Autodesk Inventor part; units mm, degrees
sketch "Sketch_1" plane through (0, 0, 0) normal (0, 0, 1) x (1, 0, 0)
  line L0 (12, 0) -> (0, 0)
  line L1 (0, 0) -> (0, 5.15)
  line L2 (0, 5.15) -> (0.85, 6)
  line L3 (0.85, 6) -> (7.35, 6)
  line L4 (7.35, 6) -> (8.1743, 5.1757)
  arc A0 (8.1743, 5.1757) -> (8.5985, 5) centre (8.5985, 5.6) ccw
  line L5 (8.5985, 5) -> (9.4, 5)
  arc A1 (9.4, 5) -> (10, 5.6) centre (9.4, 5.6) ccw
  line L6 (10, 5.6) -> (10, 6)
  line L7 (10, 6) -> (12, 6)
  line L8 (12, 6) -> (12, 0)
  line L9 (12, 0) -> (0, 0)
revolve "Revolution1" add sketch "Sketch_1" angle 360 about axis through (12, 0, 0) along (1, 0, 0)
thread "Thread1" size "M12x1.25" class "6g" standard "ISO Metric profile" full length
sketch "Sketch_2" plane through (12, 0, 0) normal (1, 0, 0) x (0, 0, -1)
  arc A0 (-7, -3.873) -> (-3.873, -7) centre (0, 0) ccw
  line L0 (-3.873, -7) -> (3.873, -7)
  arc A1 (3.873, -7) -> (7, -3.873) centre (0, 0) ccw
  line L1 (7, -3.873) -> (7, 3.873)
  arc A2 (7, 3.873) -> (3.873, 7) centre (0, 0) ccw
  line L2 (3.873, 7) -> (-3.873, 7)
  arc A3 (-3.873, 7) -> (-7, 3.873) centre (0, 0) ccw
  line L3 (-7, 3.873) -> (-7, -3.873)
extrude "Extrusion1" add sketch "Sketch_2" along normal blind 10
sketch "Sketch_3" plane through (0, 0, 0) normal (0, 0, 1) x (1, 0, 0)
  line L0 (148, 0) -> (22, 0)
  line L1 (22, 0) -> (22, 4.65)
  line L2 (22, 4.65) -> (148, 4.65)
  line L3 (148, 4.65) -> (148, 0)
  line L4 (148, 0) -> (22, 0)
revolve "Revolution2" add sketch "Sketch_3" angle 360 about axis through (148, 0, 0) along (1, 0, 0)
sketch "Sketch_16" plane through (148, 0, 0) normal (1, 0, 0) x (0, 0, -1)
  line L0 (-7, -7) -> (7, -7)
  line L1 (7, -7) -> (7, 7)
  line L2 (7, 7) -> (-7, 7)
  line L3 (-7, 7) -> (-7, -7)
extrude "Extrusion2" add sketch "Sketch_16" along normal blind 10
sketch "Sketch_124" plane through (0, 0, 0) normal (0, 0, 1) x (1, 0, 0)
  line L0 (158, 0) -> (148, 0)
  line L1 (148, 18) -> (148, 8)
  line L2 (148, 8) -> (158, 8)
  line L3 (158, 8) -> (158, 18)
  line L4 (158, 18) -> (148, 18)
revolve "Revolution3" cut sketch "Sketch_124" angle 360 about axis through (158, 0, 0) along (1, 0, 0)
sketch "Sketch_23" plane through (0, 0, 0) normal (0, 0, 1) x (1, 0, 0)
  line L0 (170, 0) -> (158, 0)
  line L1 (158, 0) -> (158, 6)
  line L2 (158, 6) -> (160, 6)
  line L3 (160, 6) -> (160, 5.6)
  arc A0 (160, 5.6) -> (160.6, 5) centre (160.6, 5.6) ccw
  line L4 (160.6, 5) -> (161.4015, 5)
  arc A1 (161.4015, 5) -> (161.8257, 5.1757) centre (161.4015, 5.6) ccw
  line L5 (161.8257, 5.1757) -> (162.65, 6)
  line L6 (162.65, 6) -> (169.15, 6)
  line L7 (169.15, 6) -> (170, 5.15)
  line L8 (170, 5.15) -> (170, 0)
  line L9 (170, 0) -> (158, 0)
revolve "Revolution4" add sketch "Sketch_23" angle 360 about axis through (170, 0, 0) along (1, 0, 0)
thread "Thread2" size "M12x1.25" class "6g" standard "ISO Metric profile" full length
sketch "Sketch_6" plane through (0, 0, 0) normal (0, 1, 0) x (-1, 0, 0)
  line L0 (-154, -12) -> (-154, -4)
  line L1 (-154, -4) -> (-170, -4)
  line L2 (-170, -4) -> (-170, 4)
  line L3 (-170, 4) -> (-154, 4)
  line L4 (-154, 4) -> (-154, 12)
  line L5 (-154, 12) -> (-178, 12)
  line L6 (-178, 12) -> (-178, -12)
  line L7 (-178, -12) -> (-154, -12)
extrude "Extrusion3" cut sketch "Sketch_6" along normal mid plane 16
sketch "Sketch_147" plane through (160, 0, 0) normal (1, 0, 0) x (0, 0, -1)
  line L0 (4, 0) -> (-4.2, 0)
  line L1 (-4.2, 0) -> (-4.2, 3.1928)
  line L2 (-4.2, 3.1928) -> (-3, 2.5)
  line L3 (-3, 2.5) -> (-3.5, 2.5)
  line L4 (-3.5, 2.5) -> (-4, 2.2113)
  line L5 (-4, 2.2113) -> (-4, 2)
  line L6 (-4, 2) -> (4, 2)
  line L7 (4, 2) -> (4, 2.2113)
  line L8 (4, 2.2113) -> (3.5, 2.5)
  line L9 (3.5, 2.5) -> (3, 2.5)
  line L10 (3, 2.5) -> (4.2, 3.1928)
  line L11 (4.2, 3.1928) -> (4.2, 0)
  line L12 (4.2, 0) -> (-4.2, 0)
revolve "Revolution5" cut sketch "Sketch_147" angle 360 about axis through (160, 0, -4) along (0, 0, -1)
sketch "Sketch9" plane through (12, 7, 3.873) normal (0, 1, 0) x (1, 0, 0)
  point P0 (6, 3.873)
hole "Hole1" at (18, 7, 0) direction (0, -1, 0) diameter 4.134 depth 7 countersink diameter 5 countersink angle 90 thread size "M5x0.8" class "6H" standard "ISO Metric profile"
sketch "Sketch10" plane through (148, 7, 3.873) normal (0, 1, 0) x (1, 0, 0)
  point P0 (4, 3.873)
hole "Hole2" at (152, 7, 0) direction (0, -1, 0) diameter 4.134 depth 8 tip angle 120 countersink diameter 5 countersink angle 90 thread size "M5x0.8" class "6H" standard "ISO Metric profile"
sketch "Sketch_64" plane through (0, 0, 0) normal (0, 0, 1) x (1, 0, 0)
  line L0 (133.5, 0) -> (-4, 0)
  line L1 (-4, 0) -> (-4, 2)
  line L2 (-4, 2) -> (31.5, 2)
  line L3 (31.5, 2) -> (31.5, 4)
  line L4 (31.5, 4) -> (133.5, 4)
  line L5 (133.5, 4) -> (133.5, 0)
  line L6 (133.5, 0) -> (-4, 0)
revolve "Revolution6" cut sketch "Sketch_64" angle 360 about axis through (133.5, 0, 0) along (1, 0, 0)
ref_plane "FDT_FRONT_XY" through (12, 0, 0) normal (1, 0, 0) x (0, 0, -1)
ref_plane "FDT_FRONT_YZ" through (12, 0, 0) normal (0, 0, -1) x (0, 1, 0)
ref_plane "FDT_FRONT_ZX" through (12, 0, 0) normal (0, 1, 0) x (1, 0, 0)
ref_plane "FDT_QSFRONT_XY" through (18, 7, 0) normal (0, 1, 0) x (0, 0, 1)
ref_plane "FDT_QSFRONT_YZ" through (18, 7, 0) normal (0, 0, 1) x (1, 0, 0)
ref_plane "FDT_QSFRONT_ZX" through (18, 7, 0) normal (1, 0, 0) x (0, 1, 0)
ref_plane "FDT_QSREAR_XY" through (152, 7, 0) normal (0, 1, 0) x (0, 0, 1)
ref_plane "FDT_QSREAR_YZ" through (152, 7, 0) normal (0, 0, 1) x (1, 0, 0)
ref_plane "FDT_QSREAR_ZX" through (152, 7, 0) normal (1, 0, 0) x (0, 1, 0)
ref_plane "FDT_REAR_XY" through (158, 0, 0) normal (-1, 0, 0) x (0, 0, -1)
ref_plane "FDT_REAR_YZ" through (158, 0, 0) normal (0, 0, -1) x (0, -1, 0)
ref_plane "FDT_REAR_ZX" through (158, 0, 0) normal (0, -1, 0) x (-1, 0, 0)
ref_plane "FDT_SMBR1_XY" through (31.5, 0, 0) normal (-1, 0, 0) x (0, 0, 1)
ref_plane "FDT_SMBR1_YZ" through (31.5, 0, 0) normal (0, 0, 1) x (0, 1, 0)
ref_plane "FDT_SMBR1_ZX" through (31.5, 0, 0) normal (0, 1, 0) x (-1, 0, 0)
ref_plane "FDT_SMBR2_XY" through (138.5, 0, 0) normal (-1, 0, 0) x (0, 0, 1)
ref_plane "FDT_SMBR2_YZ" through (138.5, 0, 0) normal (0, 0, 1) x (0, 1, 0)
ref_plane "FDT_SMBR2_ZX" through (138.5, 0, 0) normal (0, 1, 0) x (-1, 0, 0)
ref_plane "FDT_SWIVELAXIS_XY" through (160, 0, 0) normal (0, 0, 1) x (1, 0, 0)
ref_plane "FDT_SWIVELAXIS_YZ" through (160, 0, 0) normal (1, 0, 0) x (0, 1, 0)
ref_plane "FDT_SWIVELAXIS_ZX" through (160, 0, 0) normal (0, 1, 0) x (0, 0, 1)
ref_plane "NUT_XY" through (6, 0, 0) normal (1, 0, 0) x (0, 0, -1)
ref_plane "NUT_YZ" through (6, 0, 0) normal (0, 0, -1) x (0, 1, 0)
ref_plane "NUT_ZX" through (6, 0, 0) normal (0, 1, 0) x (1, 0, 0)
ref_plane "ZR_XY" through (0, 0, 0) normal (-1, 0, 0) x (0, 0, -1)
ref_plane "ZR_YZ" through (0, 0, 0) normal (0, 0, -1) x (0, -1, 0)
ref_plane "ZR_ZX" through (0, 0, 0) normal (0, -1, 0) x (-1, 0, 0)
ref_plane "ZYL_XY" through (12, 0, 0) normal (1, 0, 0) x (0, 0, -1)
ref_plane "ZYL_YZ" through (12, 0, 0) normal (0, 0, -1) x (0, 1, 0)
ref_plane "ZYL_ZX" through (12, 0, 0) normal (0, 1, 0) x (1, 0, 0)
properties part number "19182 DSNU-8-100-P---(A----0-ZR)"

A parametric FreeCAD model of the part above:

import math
import FreeCAD as App
import Part
import Sketcher

V = App.Vector
Q = App.Units.Quantity

doc = App.newDocument("Part")
body = doc.addObject("PartDesign::Body", "Body")

# Sketch on XY plane
sketch1 = body.newObject("Sketcher::SketchObject", "Sketch")
sketch1.AttachmentSupport = (doc.getObject("XY_Plane"), [""])
sketch1.MapMode = "FlatFace"
sketch1.addGeometry([
    Part.LineSegment(V(0, 0, 0), V(12, 0, 0)),  # 0
    Part.LineSegment(V(12, 0, 0), V(12, 6, 0)),  # 1
    Part.LineSegment(V(12, 6, 0), V(10, 6, 0)),  # 2
    Part.LineSegment(V(10, 6, 0), V(10, 5.6, 0)),  # 3
    Part.ArcOfCircle(Part.Circle(V(9.4, 5.6, 0), V(0, 0, 1), 0.6), math.radians(-90), math.radians(0)),  # 4
    Part.LineSegment(V(9.4, 5, 0), V(8.6, 5, 0)),  # 5
    Part.ArcOfCircle(Part.Circle(V(8.6, 5.6, 0), V(0, 0, 1), 0.6), math.radians(-135), math.radians(-90)),  # 6
    Part.LineSegment(V(8.17, 5.18, 0), V(7.35, 6, 0)),  # 7
    Part.LineSegment(V(7.35, 6, 0), V(0.85, 6, 0)),  # 8
    Part.LineSegment(V(0.85, 6, 0), V(0, 5.15, 0)),  # 9
    Part.LineSegment(V(0, 5.15, 0), V(0, 0, 0)),  # 10
], False)
sketch1.addConstraint([
    Sketcher.Constraint("Coincident", 0, 2, 1, 1),
    Sketcher.Constraint("Coincident", 1, 2, 2, 1),
    Sketcher.Constraint("Coincident", 2, 2, 3, 1),
    Sketcher.Constraint("Tangent", 3, 2, 4, 2),
    Sketcher.Constraint("Tangent", 4, 1, 5, 1),
    Sketcher.Constraint("Tangent", 5, 2, 6, 2),
    Sketcher.Constraint("Tangent", 6, 1, 7, 1),
    Sketcher.Constraint("Coincident", 7, 2, 8, 1),
    Sketcher.Constraint("Coincident", 8, 2, 9, 1),
    Sketcher.Constraint("Coincident", 9, 2, 10, 1),
    Sketcher.Constraint("Coincident", 10, 2, 0, 1),
    Sketcher.Constraint("Horizontal", 0),
    Sketcher.Constraint("Vertical", 1),
    Sketcher.Constraint("Horizontal", 2),
    Sketcher.Constraint("Vertical", 3),
    Sketcher.Constraint("Horizontal", 5),
    Sketcher.Constraint("Horizontal", 8),
    Sketcher.Constraint("Vertical", 10),
    Sketcher.Constraint("Coincident", 10, 2, -1, 1),
    Sketcher.Constraint("Equal", 4, 6),
    Sketcher.Constraint("Perpendicular", 7, 9),
    Sketcher.Constraint("Horizontal", 2, 2, 7, 2),
    Sketcher.Constraint("Radius", 4, Q("0.6 mm")),
    Sketcher.Constraint("DistanceX", 0, 1, 0, 2, Q("12 mm")),
    Sketcher.Constraint("DistanceX", 2, 2, 2, 1, Q("2 mm")),
    Sketcher.Constraint("DistanceY", 1, 1, 1, 2, Q("6 mm")),
    Sketcher.Constraint("Angle", 7, Q("135 deg")),
    Sketcher.Constraint("DistanceX", 8, 2, 8, 1, Q("6.5 mm")),
    Sketcher.Constraint("DistanceY", 3, 2, 3, 1, Q("0.4 mm")),
    Sketcher.Constraint("DistanceY", 10, 2, 10, 1, Q("5.15 mm")),
])
revolution = body.newObject("PartDesign::Revolution", "Revolution")
revolution.Profile = sketch1
revolution.ReferenceAxis = (sketch1, ["H_Axis"])
revolution.Angle = 360

# Sketch on YZ plane
sketch2 = body.newObject("Sketcher::SketchObject", "Sketch001")
sketch2.AttachmentSupport = (doc.getObject("YZ_Plane"), [""])
sketch2.MapMode = "FlatFace"
sketch2.AttachmentOffset = App.Placement(V(0, 0, 12), App.Rotation())
sketch2.addGeometry([
    Part.LineSegment(V(3.9, 7, 0), V(-3.9, 7, 0)),  # 0
    Part.ArcOfCircle(Part.Circle(V(0, 0, 0), V(0, 0, 1), 8), math.radians(119), math.radians(151)),  # 1
    Part.LineSegment(V(-7, 3.9, 0), V(-7, -3.9, 0)),  # 2
    Part.ArcOfCircle(Part.Circle(V(0, 0, 0), V(0, 0, 1), 8), math.radians(-151), math.radians(-119)),  # 3
    Part.LineSegment(V(-3.9, -7, 0), V(3.9, -7, 0)),  # 4
    Part.ArcOfCircle(Part.Circle(V(0, 0, 0), V(0, 0, 1), 8), math.radians(-61), math.radians(-29)),  # 5
    Part.LineSegment(V(7, -3.9, 0), V(7, 3.9, 0)),  # 6
    Part.ArcOfCircle(Part.Circle(V(0, 0, 0), V(0, 0, 1), 8), math.radians(29), math.radians(61)),  # 7
], False)
sketch2.addConstraint([
    Sketcher.Constraint("Coincident", 0, 2, 1, 1),
    Sketcher.Constraint("Coincident", 1, 2, 2, 1),
    Sketcher.Constraint("Coincident", 2, 2, 3, 1),
    Sketcher.Constraint("Coincident", 3, 2, 4, 1),
    Sketcher.Constraint("Coincident", 4, 2, 5, 1),
    Sketcher.Constraint("Coincident", 5, 2, 6, 1),
    Sketcher.Constraint("Coincident", 6, 2, 7, 1),
    Sketcher.Constraint("Coincident", 7, 2, 0, 1),
    Sketcher.Constraint("Horizontal", 0),
    Sketcher.Constraint("Vertical", 2),
    Sketcher.Constraint("Horizontal", 4),
    Sketcher.Constraint("Vertical", 6),
    Sketcher.Constraint("Coincident", 1, 3, -1, 1),
    Sketcher.Constraint("Coincident", 3, 3, -1, 1),
    Sketcher.Constraint("Coincident", 5, 3, -1, 1),
    Sketcher.Constraint("Coincident", 7, 3, -1, 1),
    Sketcher.Constraint("Equal", 1, 3),
    Sketcher.Constraint("Equal", 3, 5),
    Sketcher.Constraint("Equal", 5, 7),
    Sketcher.Constraint("Horizontal", 2, 2, 5, 2),
    Sketcher.Constraint("Vertical", 0, 2, 3, 2),
    Sketcher.Constraint("Equal", 4, 2),
    Sketcher.Constraint("Radius", 1, Q("8 mm")),
    Sketcher.Constraint("DistanceY", -1, 1, 0, 2, Q("7 mm")),
])
pad1 = body.newObject("PartDesign::Pad", "Pad")
pad1.Profile = sketch2
pad1.Length = 10

# Sketch on XY plane
sketch3 = body.newObject("Sketcher::SketchObject", "Sketch002")
sketch3.AttachmentSupport = (doc.getObject("XY_Plane"), [""])
sketch3.MapMode = "FlatFace"
sketch3.addGeometry([
    Part.LineSegment(V(22, 0, 0), V(148, 0, 0)),
    Part.LineSegment(V(148, 0, 0), V(148, 4.7, 0)),
    Part.LineSegment(V(148, 4.7, 0), V(22, 4.7, 0)),
    Part.LineSegment(V(22, 4.7, 0), V(22, 0, 0)),
], False)
sketch3.addConstraint([
    Sketcher.Constraint("Coincident", 0, 2, 1, 1),
    Sketcher.Constraint("Coincident", 1, 2, 2, 1),
    Sketcher.Constraint("Coincident", 2, 2, 3, 1),
    Sketcher.Constraint("Coincident", 3, 2, 0, 1),
    Sketcher.Constraint("Horizontal", 0),
    Sketcher.Constraint("Vertical", 1),
    Sketcher.Constraint("Horizontal", 2),
    Sketcher.Constraint("Vertical", 3),
    Sketcher.Constraint("PointOnObject", 0, 2, -1),
    Sketcher.Constraint("DistanceX", 0, 1, 0, 2, Q("126 mm")),
    Sketcher.Constraint("DistanceX", -1, 1, 0, 2, Q("148 mm")),
    Sketcher.Constraint("DistanceY", 1, 1, 1, 2, Q("4.65 mm")),
])
revolution2 = body.newObject("PartDesign::Revolution", "Revolution001")
revolution2.Profile = sketch3
revolution2.ReferenceAxis = (sketch3, ["H_Axis"])
revolution2.Angle = 360

# Sketch on YZ plane
sketch4 = body.newObject("Sketcher::SketchObject", "Sketch003")
sketch4.AttachmentSupport = (doc.getObject("YZ_Plane"), [""])
sketch4.MapMode = "FlatFace"
sketch4.AttachmentOffset = App.Placement(V(0, 0, 148), App.Rotation())
sketch4.addGeometry([
    Part.LineSegment(V(7, 7, 0), V(-7, 7, 0)),
    Part.LineSegment(V(-7, 7, 0), V(-7, -7, 0)),
    Part.LineSegment(V(-7, -7, 0), V(7, -7, 0)),
    Part.LineSegment(V(7, -7, 0), V(7, 7, 0)),
], False)
sketch4.addConstraint([
    Sketcher.Constraint("Coincident", 0, 2, 1, 1),
    Sketcher.Constraint("Coincident", 1, 2, 2, 1),
    Sketcher.Constraint("Coincident", 2, 2, 3, 1),
    Sketcher.Constraint("Coincident", 3, 2, 0, 1),
    Sketcher.Constraint("Horizontal", 0),
    Sketcher.Constraint("Vertical", 1),
    Sketcher.Constraint("Horizontal", 2),
    Sketcher.Constraint("Vertical", 3),
    Sketcher.Constraint("Symmetric", 0, 2, 2, 2, -1, 1),
    Sketcher.Constraint("Equal", 2, 1),
    Sketcher.Constraint("DistanceX", 0, 2, 0, 1, Q("14 mm")),
])
pad2 = body.newObject("PartDesign::Pad", "Pad001")
pad2.Profile = sketch4
pad2.Length = 10

# Sketch on XY plane
sketch5 = body.newObject("Sketcher::SketchObject", "Sketch004")
sketch5.AttachmentSupport = (doc.getObject("XY_Plane"), [""])
sketch5.MapMode = "FlatFace"
sketch5.addGeometry([
    Part.LineSegment(V(158, 18, 0), V(148, 18, 0)),
    Part.LineSegment(V(148, 18, 0), V(148, 8, 0)),
    Part.LineSegment(V(148, 8, 0), V(158, 8, 0)),
    Part.LineSegment(V(158, 8, 0), V(158, 18, 0)),
], False)
sketch5.addConstraint([
    Sketcher.Constraint("Coincident", 0, 2, 1, 1),
    Sketcher.Constraint("Coincident", 1, 2, 2, 1),
    Sketcher.Constraint("Coincident", 2, 2, 3, 1),
    Sketcher.Constraint("Coincident", 3, 2, 0, 1),
    Sketcher.Constraint("Horizontal", 0),
    Sketcher.Constraint("Vertical", 1),
    Sketcher.Constraint("Horizontal", 2),
    Sketcher.Constraint("Vertical", 3),
    Sketcher.Constraint("Equal", 2, 1),
    Sketcher.Constraint("DistanceX", 0, 2, 0, 1, Q("10 mm")),
    Sketcher.Constraint("DistanceX", -1, 1, 0, 2, Q("148 mm")),
    Sketcher.Constraint("DistanceY", -1, 1, 0, 2, Q("18 mm")),
])
groove = body.newObject("PartDesign::Groove", "Groove")
groove.Profile = sketch5
groove.ReferenceAxis = (sketch5, ["H_Axis"])
groove.Angle = 360

# Sketch on XY plane
sketch6 = body.newObject("Sketcher::SketchObject", "Sketch005")
sketch6.AttachmentSupport = (doc.getObject("XY_Plane"), [""])
sketch6.MapMode = "FlatFace"
sketch6.addGeometry([
    Part.LineSegment(V(158, 0, 0), V(170, 0, 0)),  # 0
    Part.LineSegment(V(170, 0, 0), V(170, 5.15, 0)),  # 1
    Part.LineSegment(V(170, 5.15, 0), V(169.15, 6, 0)),  # 2
    Part.LineSegment(V(169.15, 6, 0), V(162.65, 6, 0)),  # 3
    Part.LineSegment(V(162.65, 6, 0), V(161.83, 5.18, 0)),  # 4
    Part.ArcOfCircle(Part.Circle(V(161.4, 5.6, 0), V(0, 0, 1), 0.6), math.radians(-90), math.radians(-45)),  # 5
    Part.LineSegment(V(161.4, 5, 0), V(160.6, 5, 0)),  # 6
    Part.ArcOfCircle(Part.Circle(V(160.6, 5.6, 0), V(0, 0, 1), 0.6), math.radians(180), math.radians(270)),  # 7
    Part.LineSegment(V(160, 5.6, 0), V(160, 6, 0)),  # 8
    Part.LineSegment(V(160, 6, 0), V(158, 6, 0)),  # 9
    Part.LineSegment(V(158, 6, 0), V(158, 0, 0)),  # 10
], False)
sketch6.addConstraint([
    Sketcher.Constraint("Coincident", 0, 2, 1, 1),
    Sketcher.Constraint("Coincident", 1, 2, 2, 1),
    Sketcher.Constraint("Coincident", 2, 2, 3, 1),
    Sketcher.Constraint("Coincident", 3, 2, 4, 1),
    Sketcher.Constraint("Tangent", 4, 2, 5, 2),
    Sketcher.Constraint("Tangent", 5, 1, 6, 1),
    Sketcher.Constraint("Tangent", 6, 2, 7, 2),
    Sketcher.Constraint("Tangent", 7, 1, 8, 1),
    Sketcher.Constraint("Coincident", 8, 2, 9, 1),
    Sketcher.Constraint("Coincident", 9, 2, 10, 1),
    Sketcher.Constraint("Coincident", 10, 2, 0, 1),
    Sketcher.Constraint("Horizontal", 0),
    Sketcher.Constraint("Vertical", 1),
    Sketcher.Constraint("Horizontal", 3),
    Sketcher.Constraint("Horizontal", 6),
    Sketcher.Constraint("Vertical", 8),
    Sketcher.Constraint("Horizontal", 9),
    Sketcher.Constraint("Vertical", 10),
    Sketcher.Constraint("Equal", 5, 7),
    Sketcher.Constraint("PointOnObject", 0, 2, -1),
    Sketcher.Constraint("Perpendicular", 2, 4),
    Sketcher.Constraint("Horizontal", 3, 2, 8, 2),
    Sketcher.Constraint("Radius", 5, Q("0.6 mm")),
    Sketcher.Constraint("DistanceX", 0, 1, 0, 2, Q("12 mm")),
    Sketcher.Constraint("DistanceX", 9, 2, 9, 1, Q("2 mm")),
    Sketcher.Constraint("DistanceY", 10, 2, 10, 1, Q("6 mm")),
    Sketcher.Constraint("Angle", 2, Q("135 deg")),
    Sketcher.Constraint("DistanceX", 3, 2, 3, 1, Q("6.5 mm")),
    Sketcher.Constraint("DistanceY", 8, 1, 8, 2, Q("0.4 mm")),
    Sketcher.Constraint("DistanceX", -1, 1, 0, 2, Q("170 mm")),
    Sketcher.Constraint("DistanceY", 1, 1, 1, 2, Q("5.15 mm")),
])
revolution3 = body.newObject("PartDesign::Revolution", "Revolution002")
revolution3.Profile = sketch6
revolution3.ReferenceAxis = (sketch6, ["H_Axis"])
revolution3.Angle = 360

# Sketch on XZ plane
sketch7 = body.newObject("Sketcher::SketchObject", "Sketch006")
sketch7.AttachmentSupport = (doc.getObject("XZ_Plane"), [""])
sketch7.MapMode = "FlatFace"
sketch7.addGeometry([
    Part.LineSegment(V(178, -12, 0), V(154, -12, 0)),  # 0
    Part.LineSegment(V(154, -12, 0), V(154, -4, 0)),  # 1
    Part.LineSegment(V(154, -4, 0), V(170, -4, 0)),  # 2
    Part.LineSegment(V(170, -4, 0), V(170, 4, 0)),  # 3
    Part.LineSegment(V(170, 4, 0), V(154, 4, 0)),  # 4
    Part.LineSegment(V(154, 4, 0), V(154, 12, 0)),  # 5
    Part.LineSegment(V(154, 12, 0), V(178, 12, 0)),  # 6
    Part.LineSegment(V(178, 12, 0), V(178, -12, 0)),  # 7
], False)
sketch7.addConstraint([
    Sketcher.Constraint("Coincident", 0, 2, 1, 1),
    Sketcher.Constraint("Coincident", 1, 2, 2, 1),
    Sketcher.Constraint("Coincident", 2, 2, 3, 1),
    Sketcher.Constraint("Coincident", 3, 2, 4, 1),
    Sketcher.Constraint("Coincident", 4, 2, 5, 1),
    Sketcher.Constraint("Coincident", 5, 2, 6, 1),
    Sketcher.Constraint("Coincident", 6, 2, 7, 1),
    Sketcher.Constraint("Coincident", 7, 2, 0, 1),
    Sketcher.Constraint("Horizontal", 0),
    Sketcher.Constraint("Vertical", 1),
    Sketcher.Constraint("Horizontal", 2),
    Sketcher.Constraint("Vertical", 3),
    Sketcher.Constraint("Horizontal", 4),
    Sketcher.Constraint("Vertical", 5),
    Sketcher.Constraint("Horizontal", 6),
    Sketcher.Constraint("Vertical", 7),
    Sketcher.Constraint("Symmetric", 1, 2, 4, 2, -1),
    Sketcher.Constraint("Equal", 1, 3),
    Sketcher.Constraint("Equal", 3, 5),
    Sketcher.Constraint("Equal", 6, 7),
    Sketcher.Constraint("DistanceX", 0, 2, 0, 1, Q("24 mm")),
    Sketcher.Constraint("DistanceX", 2, 1, 2, 2, Q("16 mm")),
    Sketcher.Constraint("DistanceX", -1, 1, 0, 2, Q("154 mm")),
])
pocket1 = body.newObject("PartDesign::Pocket", "Pocket")
pocket1.Profile = sketch7
pocket1.Length = 16
pocket1.Midplane = True

# Sketch on YZ plane
sketch8 = body.newObject("Sketcher::SketchObject", "Sketch007")
sketch8.AttachmentSupport = (doc.getObject("YZ_Plane"), [""])
sketch8.MapMode = "FlatFace"
sketch8.AttachmentOffset = App.Placement(V(0, 0, 160), App.Rotation())
sketch8.addGeometry([
    Part.LineSegment(V(0, 4.2, 0), V(0, -4.2, 0)),  # 0
    Part.LineSegment(V(0, -4.2, 0), V(3.19, -4.2, 0)),  # 1
    Part.LineSegment(V(3.19, -4.2, 0), V(2.5, -3, 0)),  # 2
    Part.LineSegment(V(2.5, -3, 0), V(2.5, -3.5, 0)),  # 3
    Part.LineSegment(V(2.5, -3.5, 0), V(2.21, -4, 0)),  # 4
    Part.LineSegment(V(2.21, -4, 0), V(2, -4, 0)),  # 5
    Part.LineSegment(V(2, -4, 0), V(2, 4, 0)),  # 6
    Part.LineSegment(V(2, 4, 0), V(2.21, 4, 0)),  # 7
    Part.LineSegment(V(2.21, 4, 0), V(2.5, 3.5, 0)),  # 8
    Part.LineSegment(V(2.5, 3.5, 0), V(2.5, 3, 0)),  # 9
    Part.LineSegment(V(2.5, 3, 0), V(3.19, 4.2, 0)),  # 10
    Part.LineSegment(V(3.19, 4.2, 0), V(0, 4.2, 0)),  # 11
], False)
sketch8.addConstraint([
    Sketcher.Constraint("Coincident", 0, 2, 1, 1),
    Sketcher.Constraint("Coincident", 1, 2, 2, 1),
    Sketcher.Constraint("Coincident", 2, 2, 3, 1),
    Sketcher.Constraint("Coincident", 3, 2, 4, 1),
    Sketcher.Constraint("Coincident", 4, 2, 5, 1),
    Sketcher.Constraint("Coincident", 5, 2, 6, 1),
    Sketcher.Constraint("Coincident", 6, 2, 7, 1),
    Sketcher.Constraint("Coincident", 7, 2, 8, 1),
    Sketcher.Constraint("Coincident", 8, 2, 9, 1),
    Sketcher.Constraint("Coincident", 9, 2, 10, 1),
    Sketcher.Constraint("Coincident", 10, 2, 11, 1),
    Sketcher.Constraint("Coincident", 11, 2, 0, 1),
    Sketcher.Constraint("Vertical", 0),
    Sketcher.Constraint("Horizontal", 1),
    Sketcher.Constraint("Vertical", 3),
    Sketcher.Constraint("Horizontal", 5),
    Sketcher.Constraint("Vertical", 6),
    Sketcher.Constraint("Horizontal", 7),
    Sketcher.Constraint("Vertical", 9),
    Sketcher.Constraint("Horizontal", 11),
    Sketcher.Constraint("Symmetric", 0, 2, 11, 2, -1, 1),
    Sketcher.Constraint("Symmetric", 4, 2, 7, 2, -1),
    Sketcher.Constraint("Symmetric", 3, 2, 8, 2, -1),
    Sketcher.Constraint("Parallel", 2, 8),
    Sketcher.Constraint("Parallel", 4, 10),
    Sketcher.Constraint("Vertical", 1, 2, 10, 2),
    Sketcher.Constraint("DistanceY", 6, 1, 6, 2, Q("8 mm")),
    Sketcher.Constraint("Angle", 2, Q("119.9993 deg")),
    Sketcher.Constraint("DistanceY", 0, 2, 0, 1, Q("8.4 mm")),
    Sketcher.Constraint("DistanceY", 3, 2, 3, 1, Q("0.5 mm")),
    Sketcher.Constraint("DistanceY", 2, 2, -1, 1, Q("3 mm")),
    Sketcher.Constraint("DistanceX", -1, 1, 5, 2, Q("2 mm")),
    Sketcher.Constraint("DistanceX", -1, 1, 2, 2, Q("2.5 mm")),
])
groove2 = body.newObject("PartDesign::Groove", "Groove001")
groove2.Profile = sketch8
groove2.ReferenceAxis = (sketch8, ["V_Axis"])
groove2.Angle = 360

# Sketch on XZ plane
sketch9 = body.newObject("Sketcher::SketchObject", "Sketch008")
sketch9.AttachmentSupport = (doc.getObject("XZ_Plane"), [""])
sketch9.MapMode = "FlatFace"
sketch9.AttachmentOffset = App.Placement(V(0, 0, -7), App.Rotation())
sketch9.addGeometry(Part.Circle(V(18, 0, 0), V(0, 0, 1), 2.1), False)
sketch9.addConstraint([
    Sketcher.Constraint("PointOnObject", 0, 3, -1),
    Sketcher.Constraint("Diameter", 0, Q("4.134 mm")),
    Sketcher.Constraint("DistanceX", -1, 1, 0, 3, Q("18 mm")),
])
doc.recompute()
hole = body.newObject("PartDesign::Hole", "Hole")
hole.Profile = sketch9
hole.ThreadType = "None"
hole.Diameter = 4.134
hole.DepthType = "Dimension"
hole.Depth = 7
hole.DrillPoint = "Flat"
hole.HoleCutType = "Countersink"
hole.HoleCutDiameter = 5
hole.HoleCutCountersinkAngle = 90
hole.Reversed = True

# Sketch on XZ plane
sketch10 = body.newObject("Sketcher::SketchObject", "Sketch009")
sketch10.AttachmentSupport = (doc.getObject("XZ_Plane"), [""])
sketch10.MapMode = "FlatFace"
sketch10.AttachmentOffset = App.Placement(V(0, 0, -7), App.Rotation())
sketch10.addGeometry(Part.Circle(V(152, 0, 0), V(0, 0, 1), 2.1), False)
sketch10.addConstraint([
    Sketcher.Constraint("PointOnObject", 0, 3, -1),
    Sketcher.Constraint("Diameter", 0, Q("4.134 mm")),
    Sketcher.Constraint("DistanceX", -1, 1, 0, 3, Q("152 mm")),
])
doc.recompute()
hole2 = body.newObject("PartDesign::Hole", "Hole001")
hole2.Profile = sketch10
hole2.ThreadType = "None"
hole2.Diameter = 4.134
hole2.DepthType = "Dimension"
hole2.Depth = 8
hole2.DrillPoint = "Angled"
hole2.DrillPointAngle = 120
hole2.HoleCutType = "Countersink"
hole2.HoleCutDiameter = 5
hole2.HoleCutCountersinkAngle = 90
hole2.Reversed = True

# Sketch on XY plane
sketch11 = body.newObject("Sketcher::SketchObject", "Sketch010")
sketch11.AttachmentSupport = (doc.getObject("XY_Plane"), [""])
sketch11.MapMode = "FlatFace"
sketch11.addGeometry([
    Part.LineSegment(V(-4, 0, 0), V(133.5, 0, 0)),  # 0
    Part.LineSegment(V(133.5, 0, 0), V(133.5, 4, 0)),  # 1
    Part.LineSegment(V(133.5, 4, 0), V(31.5, 4, 0)),  # 2
    Part.LineSegment(V(31.5, 4, 0), V(31.5, 2, 0)),  # 3
    Part.LineSegment(V(31.5, 2, 0), V(-4, 2, 0)),  # 4
    Part.LineSegment(V(-4, 2, 0), V(-4, 0, 0)),  # 5
], False)
sketch11.addConstraint([
    Sketcher.Constraint("Coincident", 0, 2, 1, 1),
    Sketcher.Constraint("Coincident", 1, 2, 2, 1),
    Sketcher.Constraint("Coincident", 2, 2, 3, 1),
    Sketcher.Constraint("Coincident", 3, 2, 4, 1),
    Sketcher.Constraint("Coincident", 4, 2, 5, 1),
    Sketcher.Constraint("Coincident", 5, 2, 0, 1),
    Sketcher.Constraint("Horizontal", 0),
    Sketcher.Constraint("Vertical", 1),
    Sketcher.Constraint("Horizontal", 2),
    Sketcher.Constraint("Vertical", 3),
    Sketcher.Constraint("Horizontal", 4),
    Sketcher.Constraint("Vertical", 5),
    Sketcher.Constraint("PointOnObject", 0, 2, -1),
    Sketcher.Constraint("Equal", 3, 5),
    Sketcher.Constraint("DistanceX", 2, 2, 2, 1, Q("102 mm")),
    Sketcher.Constraint("DistanceY", 1, 1, 1, 2, Q("4 mm")),
    Sketcher.Constraint("DistanceX", 0, 1, 0, 2, Q("137.5 mm")),
    Sketcher.Constraint("DistanceX", 4, 2, -1, 1, Q("4 mm")),
])
groove3 = body.newObject("PartDesign::Groove", "Groove002")
groove3.Profile = sketch11
groove3.ReferenceAxis = (sketch11, ["H_Axis"])
groove3.Angle = 360

doc.recompute()
